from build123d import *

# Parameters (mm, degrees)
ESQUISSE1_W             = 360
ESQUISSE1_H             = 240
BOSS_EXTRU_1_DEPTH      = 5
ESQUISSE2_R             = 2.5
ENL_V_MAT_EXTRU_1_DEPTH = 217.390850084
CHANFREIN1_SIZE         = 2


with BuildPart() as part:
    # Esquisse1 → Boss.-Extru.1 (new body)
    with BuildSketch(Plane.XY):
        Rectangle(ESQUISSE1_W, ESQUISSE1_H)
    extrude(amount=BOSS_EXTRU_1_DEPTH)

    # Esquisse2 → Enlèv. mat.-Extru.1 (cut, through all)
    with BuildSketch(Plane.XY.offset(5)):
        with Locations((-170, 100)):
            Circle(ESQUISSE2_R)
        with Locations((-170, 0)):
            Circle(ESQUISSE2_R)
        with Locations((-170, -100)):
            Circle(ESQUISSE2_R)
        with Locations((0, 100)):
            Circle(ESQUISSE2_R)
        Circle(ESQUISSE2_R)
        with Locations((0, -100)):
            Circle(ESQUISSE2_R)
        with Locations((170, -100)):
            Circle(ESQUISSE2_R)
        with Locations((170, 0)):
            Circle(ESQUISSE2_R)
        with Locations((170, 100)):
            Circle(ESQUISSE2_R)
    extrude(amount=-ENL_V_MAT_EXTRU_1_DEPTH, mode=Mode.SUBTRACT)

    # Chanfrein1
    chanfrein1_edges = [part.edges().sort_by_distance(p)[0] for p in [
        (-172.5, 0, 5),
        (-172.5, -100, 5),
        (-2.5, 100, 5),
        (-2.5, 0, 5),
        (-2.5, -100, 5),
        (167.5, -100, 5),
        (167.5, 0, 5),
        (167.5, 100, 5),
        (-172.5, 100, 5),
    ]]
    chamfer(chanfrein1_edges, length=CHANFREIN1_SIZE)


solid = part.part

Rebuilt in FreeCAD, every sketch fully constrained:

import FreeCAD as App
import Part
import Sketcher
Q = App.Units.Quantity


def edges_at(feature, points):
    """Names of the edges that pass closest to the given points."""
    edges = feature.Shape.Edges
    near = lambda p: min(range(len(edges)), key=lambda i: edges[i].distToShape(Part.Vertex(*p))[0])
    return sorted({f"Edge{near(p) + 1}" for p in points})

doc = App.newDocument("Part")
body = doc.addObject("PartDesign::Body", "Body")

sketch1 = body.newObject("Sketcher::SketchObject", "Sketch")
sketch1.AttachmentSupport = (doc.getObject("XY_Plane"), [""])
sketch1.MapMode = "FlatFace"
sketch1.addGeometry([
    Part.LineSegment(App.Vector(-180, 120, 0), App.Vector(-180, -120, 0)),
    Part.LineSegment(App.Vector(-180, -120, 0), App.Vector(180, -120, 0)),
    Part.LineSegment(App.Vector(180, -120, 0), App.Vector(180, 120, 0)),
    Part.LineSegment(App.Vector(180, 120, 0), App.Vector(-180, 120, 0)),
], False)
sketch1.addConstraint([
    Sketcher.Constraint("Coincident", 0, 2, 1, 1),
    Sketcher.Constraint("Coincident", 1, 2, 2, 1),
    Sketcher.Constraint("Coincident", 2, 2, 3, 1),
    Sketcher.Constraint("Coincident", 3, 2, 0, 1),
    Sketcher.Constraint("Vertical", 0),
    Sketcher.Constraint("Horizontal", 1),
    Sketcher.Constraint("Vertical", 2),
    Sketcher.Constraint("Horizontal", 3),
    Sketcher.Constraint("Symmetric", 0, 2, 2, 2, -1, 1),
    Sketcher.Constraint("DistanceX", 1, 1, 1, 2, Q("360 mm")),
    Sketcher.Constraint("DistanceY", 0, 2, 0, 1, Q("240 mm")),
])
pad1 = body.newObject("PartDesign::Pad", "Pad")
pad1.Profile = sketch1
pad1.Length = 5

sketch2 = body.newObject("Sketcher::SketchObject", "Sketch001")
sketch2.AttachmentSupport = (doc.getObject("XY_Plane"), [""])
sketch2.MapMode = "FlatFace"
sketch2.AttachmentOffset = App.Placement(App.Vector(0, 0, 5), App.Rotation())
sketch2.addGeometry([
    Part.Circle(App.Vector(-170, 100, 0), App.Vector(0, 0, 1), 2.5),
    Part.Circle(App.Vector(-170, 0, 0), App.Vector(0, 0, 1), 2.5),
    Part.Circle(App.Vector(-170, -100, 0), App.Vector(0, 0, 1), 2.5),
    Part.Circle(App.Vector(0, 100, 0), App.Vector(0, 0, 1), 2.5),
    Part.Circle(App.Vector(0, 0, 0), App.Vector(0, 0, 1), 2.5),
    Part.Circle(App.Vector(0, -100, 0), App.Vector(0, 0, 1), 2.5),
    Part.Circle(App.Vector(170, -100, 0), App.Vector(0, 0, 1), 2.5),
    Part.Circle(App.Vector(170, 0, 0), App.Vector(0, 0, 1), 2.5),
    Part.Circle(App.Vector(170, 100, 0), App.Vector(0, 0, 1), 2.5),
], False)
sketch2.addConstraint([
    Sketcher.Constraint("Coincident", 4, 3, -1, 1),
    Sketcher.Constraint("Equal", 0, 1),
    Sketcher.Constraint("Equal", 1, 2),
    Sketcher.Constraint("Equal", 2, 3),
    Sketcher.Constraint("Equal", 3, 4),
    Sketcher.Constraint("Equal", 4, 5),
    Sketcher.Constraint("Equal", 5, 6),
    Sketcher.Constraint("Equal", 6, 7),
    Sketcher.Constraint("Equal", 7, 8),
    Sketcher.Constraint("Symmetric", 3, 3, 5, 3, -1, 1),
    Sketcher.Constraint("Symmetric", 0, 3, 6, 3, -1, 1),
    Sketcher.Constraint("Symmetric", 1, 3, 7, 3, -1, 1),
    Sketcher.Constraint("Symmetric", 2, 3, 8, 3, -1, 1),
    Sketcher.Constraint("Symmetric", 2, 3, 6, 3, -2),
    Sketcher.Constraint("PointOnObject", 1, 3, -1),
    Sketcher.Constraint("PointOnObject", 3, 3, -2),
    Sketcher.Constraint("Horizontal", 0, 3, 3, 3),
    Sketcher.Constraint("Vertical", 0, 3, 1, 3),
    Sketcher.Constraint("Diameter", 0, Q("5 mm")),
    Sketcher.Constraint("DistanceX", 0, 3, -1, 1, Q("170 mm")),
    Sketcher.Constraint("DistanceY", -1, 1, 0, 3, Q("100 mm")),
])
pocket1 = body.newObject("PartDesign::Pocket", "Pocket")
pocket1.Profile = sketch2
pocket1.Type = "ThroughAll"
doc.recompute()

chamfer = body.newObject("PartDesign::Chamfer", "Chamfer")
chamfer.Base = (pocket1, edges_at(pocket1, [
    (-172.5, 0, 5),
    (-172.5, -100, 5),
    (-2.5, 100, 5),
    (-2.5, 0, 5),
    (-2.5, -100, 5),
    (167.5, -100, 5),
    (167.5, 0, 5),
    (167.5, 100, 5),
    (-172.5, 100, 5),
]))
chamfer.Size = 2

doc.recompute()
